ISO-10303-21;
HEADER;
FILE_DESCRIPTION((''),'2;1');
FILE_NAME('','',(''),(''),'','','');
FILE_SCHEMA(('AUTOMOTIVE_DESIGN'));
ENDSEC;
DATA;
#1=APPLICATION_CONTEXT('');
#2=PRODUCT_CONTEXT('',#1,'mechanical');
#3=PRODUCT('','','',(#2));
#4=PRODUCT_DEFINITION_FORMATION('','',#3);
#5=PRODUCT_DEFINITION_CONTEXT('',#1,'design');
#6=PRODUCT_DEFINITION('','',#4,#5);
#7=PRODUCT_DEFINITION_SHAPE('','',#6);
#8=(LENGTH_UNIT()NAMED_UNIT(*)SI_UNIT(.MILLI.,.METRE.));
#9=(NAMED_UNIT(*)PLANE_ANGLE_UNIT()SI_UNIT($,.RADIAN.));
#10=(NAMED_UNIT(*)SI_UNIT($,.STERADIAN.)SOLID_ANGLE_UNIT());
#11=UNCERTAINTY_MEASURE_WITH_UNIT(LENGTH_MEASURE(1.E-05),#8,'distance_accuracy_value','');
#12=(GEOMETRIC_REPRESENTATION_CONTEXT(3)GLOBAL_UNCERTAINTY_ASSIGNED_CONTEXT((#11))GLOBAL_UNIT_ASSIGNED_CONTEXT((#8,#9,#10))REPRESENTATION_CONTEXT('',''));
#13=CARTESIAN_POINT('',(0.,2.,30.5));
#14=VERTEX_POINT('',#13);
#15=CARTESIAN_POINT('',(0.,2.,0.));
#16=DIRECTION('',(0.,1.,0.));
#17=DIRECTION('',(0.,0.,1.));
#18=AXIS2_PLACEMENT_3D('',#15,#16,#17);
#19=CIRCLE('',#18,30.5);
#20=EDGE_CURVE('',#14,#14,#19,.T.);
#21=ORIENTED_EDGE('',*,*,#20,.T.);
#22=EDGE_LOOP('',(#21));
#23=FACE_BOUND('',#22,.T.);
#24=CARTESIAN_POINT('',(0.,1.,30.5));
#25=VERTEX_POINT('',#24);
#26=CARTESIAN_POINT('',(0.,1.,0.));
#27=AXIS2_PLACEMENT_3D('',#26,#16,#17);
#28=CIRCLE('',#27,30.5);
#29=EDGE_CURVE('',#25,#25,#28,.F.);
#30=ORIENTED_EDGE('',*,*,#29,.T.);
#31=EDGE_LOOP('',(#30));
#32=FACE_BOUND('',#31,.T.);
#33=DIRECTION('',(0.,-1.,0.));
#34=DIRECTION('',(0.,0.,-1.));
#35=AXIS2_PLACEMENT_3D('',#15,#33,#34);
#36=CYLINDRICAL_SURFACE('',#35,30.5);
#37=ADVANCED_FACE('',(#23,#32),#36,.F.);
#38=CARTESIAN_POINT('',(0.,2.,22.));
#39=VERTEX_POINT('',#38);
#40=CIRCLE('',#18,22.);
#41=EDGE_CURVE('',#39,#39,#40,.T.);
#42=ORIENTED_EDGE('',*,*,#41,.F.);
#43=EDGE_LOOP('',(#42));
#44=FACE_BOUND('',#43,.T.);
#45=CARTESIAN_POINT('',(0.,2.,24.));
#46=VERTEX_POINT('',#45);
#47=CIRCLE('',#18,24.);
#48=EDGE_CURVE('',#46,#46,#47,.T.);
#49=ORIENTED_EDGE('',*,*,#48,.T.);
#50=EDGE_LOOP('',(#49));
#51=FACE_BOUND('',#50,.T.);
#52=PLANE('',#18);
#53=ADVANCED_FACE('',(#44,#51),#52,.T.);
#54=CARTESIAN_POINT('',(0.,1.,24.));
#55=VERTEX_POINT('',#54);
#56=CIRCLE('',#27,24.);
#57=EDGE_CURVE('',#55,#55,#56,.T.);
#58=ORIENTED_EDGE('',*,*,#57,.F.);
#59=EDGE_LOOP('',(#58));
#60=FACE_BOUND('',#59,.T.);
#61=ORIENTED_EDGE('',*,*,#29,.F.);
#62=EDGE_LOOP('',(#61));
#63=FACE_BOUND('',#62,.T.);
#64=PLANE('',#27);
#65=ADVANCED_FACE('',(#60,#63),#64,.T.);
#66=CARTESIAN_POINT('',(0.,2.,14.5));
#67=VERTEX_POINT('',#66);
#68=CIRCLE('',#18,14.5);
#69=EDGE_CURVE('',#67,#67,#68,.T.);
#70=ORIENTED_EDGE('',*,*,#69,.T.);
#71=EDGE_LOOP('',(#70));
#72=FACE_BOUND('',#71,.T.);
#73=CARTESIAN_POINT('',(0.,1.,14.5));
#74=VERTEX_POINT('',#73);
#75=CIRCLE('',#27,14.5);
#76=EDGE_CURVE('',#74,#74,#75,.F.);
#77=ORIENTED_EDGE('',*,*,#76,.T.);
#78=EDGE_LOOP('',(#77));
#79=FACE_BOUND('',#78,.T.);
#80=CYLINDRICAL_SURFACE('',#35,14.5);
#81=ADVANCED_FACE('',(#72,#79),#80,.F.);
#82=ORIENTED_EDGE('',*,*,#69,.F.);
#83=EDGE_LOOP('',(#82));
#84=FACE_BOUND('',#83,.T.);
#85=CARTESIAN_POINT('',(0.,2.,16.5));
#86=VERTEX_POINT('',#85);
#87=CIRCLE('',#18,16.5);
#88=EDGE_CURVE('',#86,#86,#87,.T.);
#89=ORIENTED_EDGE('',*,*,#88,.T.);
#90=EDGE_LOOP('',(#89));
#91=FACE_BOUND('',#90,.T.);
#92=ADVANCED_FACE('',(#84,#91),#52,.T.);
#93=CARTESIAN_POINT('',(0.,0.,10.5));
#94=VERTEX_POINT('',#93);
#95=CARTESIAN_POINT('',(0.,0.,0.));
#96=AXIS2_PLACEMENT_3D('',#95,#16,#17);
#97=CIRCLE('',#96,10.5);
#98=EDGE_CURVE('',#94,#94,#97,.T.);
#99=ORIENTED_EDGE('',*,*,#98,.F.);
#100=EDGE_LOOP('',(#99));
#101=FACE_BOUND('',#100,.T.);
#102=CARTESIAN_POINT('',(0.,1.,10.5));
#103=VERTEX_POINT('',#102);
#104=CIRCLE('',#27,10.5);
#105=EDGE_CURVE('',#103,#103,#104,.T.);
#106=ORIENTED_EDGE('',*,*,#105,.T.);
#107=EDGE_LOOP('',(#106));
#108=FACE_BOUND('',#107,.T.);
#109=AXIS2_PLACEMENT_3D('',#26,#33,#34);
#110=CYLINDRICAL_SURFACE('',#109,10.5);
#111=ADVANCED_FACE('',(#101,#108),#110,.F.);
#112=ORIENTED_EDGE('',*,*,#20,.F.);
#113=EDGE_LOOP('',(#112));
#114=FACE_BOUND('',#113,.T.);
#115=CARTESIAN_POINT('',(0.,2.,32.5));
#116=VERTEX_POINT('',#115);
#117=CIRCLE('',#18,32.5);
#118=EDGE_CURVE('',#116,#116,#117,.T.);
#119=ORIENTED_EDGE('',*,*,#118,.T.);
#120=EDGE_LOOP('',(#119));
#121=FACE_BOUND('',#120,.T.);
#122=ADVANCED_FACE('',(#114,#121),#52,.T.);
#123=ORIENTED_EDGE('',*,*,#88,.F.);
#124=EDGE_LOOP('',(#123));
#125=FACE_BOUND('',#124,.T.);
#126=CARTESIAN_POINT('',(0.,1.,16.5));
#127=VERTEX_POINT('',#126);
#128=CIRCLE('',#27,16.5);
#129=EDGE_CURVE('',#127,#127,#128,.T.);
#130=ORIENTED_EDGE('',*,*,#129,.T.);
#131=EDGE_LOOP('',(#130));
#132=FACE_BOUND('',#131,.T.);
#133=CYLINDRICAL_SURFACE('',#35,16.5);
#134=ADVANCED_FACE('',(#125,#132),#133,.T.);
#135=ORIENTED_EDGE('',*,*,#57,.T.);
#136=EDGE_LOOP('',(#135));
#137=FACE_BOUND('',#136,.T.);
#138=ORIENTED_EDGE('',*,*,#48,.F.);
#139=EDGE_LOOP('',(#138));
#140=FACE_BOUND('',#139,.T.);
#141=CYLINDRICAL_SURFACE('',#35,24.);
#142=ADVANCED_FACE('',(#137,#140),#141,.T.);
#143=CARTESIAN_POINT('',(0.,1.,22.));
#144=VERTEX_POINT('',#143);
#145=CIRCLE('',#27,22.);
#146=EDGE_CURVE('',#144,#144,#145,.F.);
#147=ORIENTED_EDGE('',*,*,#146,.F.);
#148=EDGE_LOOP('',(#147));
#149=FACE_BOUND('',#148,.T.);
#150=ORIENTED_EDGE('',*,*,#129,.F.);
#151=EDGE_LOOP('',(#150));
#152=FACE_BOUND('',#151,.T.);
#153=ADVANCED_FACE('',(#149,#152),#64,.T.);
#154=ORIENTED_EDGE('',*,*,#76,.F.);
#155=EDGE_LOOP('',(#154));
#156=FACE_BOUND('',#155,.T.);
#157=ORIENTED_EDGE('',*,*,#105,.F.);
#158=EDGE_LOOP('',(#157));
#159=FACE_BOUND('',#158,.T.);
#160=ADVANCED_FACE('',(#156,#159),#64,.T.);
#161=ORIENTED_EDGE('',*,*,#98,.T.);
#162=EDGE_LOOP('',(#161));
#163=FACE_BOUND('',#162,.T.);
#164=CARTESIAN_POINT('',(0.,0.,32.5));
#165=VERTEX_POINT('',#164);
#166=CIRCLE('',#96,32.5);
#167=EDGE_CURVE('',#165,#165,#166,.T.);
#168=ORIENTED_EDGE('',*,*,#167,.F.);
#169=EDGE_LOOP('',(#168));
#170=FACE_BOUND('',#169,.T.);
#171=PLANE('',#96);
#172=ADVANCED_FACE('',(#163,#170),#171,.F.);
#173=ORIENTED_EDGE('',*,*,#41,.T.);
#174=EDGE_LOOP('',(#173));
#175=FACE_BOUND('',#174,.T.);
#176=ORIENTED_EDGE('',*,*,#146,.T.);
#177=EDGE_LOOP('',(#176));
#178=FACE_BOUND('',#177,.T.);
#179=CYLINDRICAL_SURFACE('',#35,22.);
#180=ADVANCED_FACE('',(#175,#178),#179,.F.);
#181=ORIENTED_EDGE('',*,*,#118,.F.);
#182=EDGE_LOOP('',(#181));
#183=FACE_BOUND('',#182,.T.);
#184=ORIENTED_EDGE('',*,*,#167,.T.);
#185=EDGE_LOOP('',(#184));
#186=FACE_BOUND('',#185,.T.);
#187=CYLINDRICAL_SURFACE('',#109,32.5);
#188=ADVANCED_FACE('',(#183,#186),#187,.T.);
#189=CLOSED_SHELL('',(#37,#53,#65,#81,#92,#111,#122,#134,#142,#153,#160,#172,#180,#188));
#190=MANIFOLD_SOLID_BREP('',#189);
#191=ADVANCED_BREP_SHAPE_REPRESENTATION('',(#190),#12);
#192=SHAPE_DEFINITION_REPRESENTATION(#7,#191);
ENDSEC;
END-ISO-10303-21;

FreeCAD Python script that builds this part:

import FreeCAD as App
import Part
import Sketcher

V = App.Vector
Q = App.Units.Quantity

doc = App.newDocument("Part")
params = doc.addObject("Spreadsheet::Sheet", "Params")
for row, (alias, value) in enumerate([
    ("sketch1_diameter", "65 mm"),
    ("sketch1_diameter2", "21 mm"),
    ("pad1_length", "1 mm"),
    ("sketch2_diameter", "65 mm"),
    ("sketch2_diameter2", "61 mm"),
    ("sketch2_diameter3", "48 mm"),
    ("sketch2_diameter4", "44 mm"),
    ("sketch2_diameter5", "33 mm"),
    ("pad2_length", "1 mm"),
], start=1):
    params.set(f"A{row}", alias)
    params.set(f"B{row}", "=" + value)
    params.setAlias(f"B{row}", alias)

body = doc.addObject("PartDesign::Body", "Body")

# Sketch on XZ plane
sketch1 = body.newObject("Sketcher::SketchObject", "Sketch")
sketch1.AttachmentSupport = (doc.getObject("XZ_Plane"), [""])
sketch1.MapMode = "FlatFace"
sketch1.addGeometry([
    Part.Circle(V(0, 0, 0), V(0, 0, 1), 32),
    Part.Circle(V(0, 0, 0), V(0, 0, 1), 10),
], False)
sketch1.addConstraint([
    Sketcher.Constraint("Coincident", 0, 3, -1, 1),
    Sketcher.Constraint("Coincident", 1, 3, -1, 1),
    Sketcher.Constraint("Diameter", 0, Q("65 mm")),
    Sketcher.Constraint("Diameter", 1, Q("21 mm")),
])
sketch1.setExpression("Constraints[2]", "Params.sketch1_diameter")
sketch1.setExpression("Constraints[3]", "Params.sketch1_diameter2")
pad1 = body.newObject("PartDesign::Pad", "Pad")
pad1.Profile = sketch1
pad1.setExpression("Length", "Params.pad1_length")
pad1.Reversed = True

# Sketch on XZ plane
sketch2 = body.newObject("Sketcher::SketchObject", "Sketch001")
sketch2.AttachmentSupport = (doc.getObject("XZ_Plane"), [""])
sketch2.MapMode = "FlatFace"
sketch2.AttachmentOffset = App.Placement(V(0, 0, -1), App.Rotation())
sketch2.addGeometry([
    Part.Circle(V(0, 0, 0), V(0, 0, 1), 32),  # 0
    Part.Circle(V(0, 0, 0), V(0, 0, 1), 30),  # 1
    Part.Circle(V(0, 0, 0), V(0, 0, 1), 24),  # 2
    Part.Circle(V(0, 0, 0), V(0, 0, 1), 22),  # 3
    Part.Circle(V(0, 0, 0), V(0, 0, 1), 16),  # 4
    Part.Circle(V(0, 0, 0), V(0, 0, 1), 14),  # 5
], False)
sketch2.addConstraint([
    Sketcher.Constraint("Coincident", 0, 3, -1, 1),
    Sketcher.Constraint("Coincident", 1, 3, -1, 1),
    Sketcher.Constraint("Coincident", 2, 3, -1, 1),
    Sketcher.Constraint("Coincident", 3, 3, -1, 1),
    Sketcher.Constraint("Coincident", 4, 3, -1, 1),
    Sketcher.Constraint("Coincident", 5, 3, -1, 1),
    Sketcher.Constraint("Diameter", 0, Q("65 mm")),
    Sketcher.Constraint("Diameter", 1, Q("61 mm")),
    Sketcher.Constraint("Diameter", 2, Q("48 mm")),
    Sketcher.Constraint("Diameter", 3, Q("44 mm")),
    Sketcher.Constraint("Diameter", 4, Q("33 mm")),
    Sketcher.Constraint("Diameter", 5, Q("29 mm")),
])
sketch2.setExpression("Constraints[6]", "Params.sketch2_diameter")
sketch2.setExpression("Constraints[7]", "Params.sketch2_diameter2")
sketch2.setExpression("Constraints[8]", "Params.sketch2_diameter3")
sketch2.setExpression("Constraints[9]", "Params.sketch2_diameter4")
sketch2.setExpression("Constraints[10]", "Params.sketch2_diameter5")
pad2 = body.newObject("PartDesign::Pad", "Pad001")
pad2.Profile = sketch2
pad2.setExpression("Length", "Params.pad2_length")
pad2.Reversed = True

doc.recompute()
